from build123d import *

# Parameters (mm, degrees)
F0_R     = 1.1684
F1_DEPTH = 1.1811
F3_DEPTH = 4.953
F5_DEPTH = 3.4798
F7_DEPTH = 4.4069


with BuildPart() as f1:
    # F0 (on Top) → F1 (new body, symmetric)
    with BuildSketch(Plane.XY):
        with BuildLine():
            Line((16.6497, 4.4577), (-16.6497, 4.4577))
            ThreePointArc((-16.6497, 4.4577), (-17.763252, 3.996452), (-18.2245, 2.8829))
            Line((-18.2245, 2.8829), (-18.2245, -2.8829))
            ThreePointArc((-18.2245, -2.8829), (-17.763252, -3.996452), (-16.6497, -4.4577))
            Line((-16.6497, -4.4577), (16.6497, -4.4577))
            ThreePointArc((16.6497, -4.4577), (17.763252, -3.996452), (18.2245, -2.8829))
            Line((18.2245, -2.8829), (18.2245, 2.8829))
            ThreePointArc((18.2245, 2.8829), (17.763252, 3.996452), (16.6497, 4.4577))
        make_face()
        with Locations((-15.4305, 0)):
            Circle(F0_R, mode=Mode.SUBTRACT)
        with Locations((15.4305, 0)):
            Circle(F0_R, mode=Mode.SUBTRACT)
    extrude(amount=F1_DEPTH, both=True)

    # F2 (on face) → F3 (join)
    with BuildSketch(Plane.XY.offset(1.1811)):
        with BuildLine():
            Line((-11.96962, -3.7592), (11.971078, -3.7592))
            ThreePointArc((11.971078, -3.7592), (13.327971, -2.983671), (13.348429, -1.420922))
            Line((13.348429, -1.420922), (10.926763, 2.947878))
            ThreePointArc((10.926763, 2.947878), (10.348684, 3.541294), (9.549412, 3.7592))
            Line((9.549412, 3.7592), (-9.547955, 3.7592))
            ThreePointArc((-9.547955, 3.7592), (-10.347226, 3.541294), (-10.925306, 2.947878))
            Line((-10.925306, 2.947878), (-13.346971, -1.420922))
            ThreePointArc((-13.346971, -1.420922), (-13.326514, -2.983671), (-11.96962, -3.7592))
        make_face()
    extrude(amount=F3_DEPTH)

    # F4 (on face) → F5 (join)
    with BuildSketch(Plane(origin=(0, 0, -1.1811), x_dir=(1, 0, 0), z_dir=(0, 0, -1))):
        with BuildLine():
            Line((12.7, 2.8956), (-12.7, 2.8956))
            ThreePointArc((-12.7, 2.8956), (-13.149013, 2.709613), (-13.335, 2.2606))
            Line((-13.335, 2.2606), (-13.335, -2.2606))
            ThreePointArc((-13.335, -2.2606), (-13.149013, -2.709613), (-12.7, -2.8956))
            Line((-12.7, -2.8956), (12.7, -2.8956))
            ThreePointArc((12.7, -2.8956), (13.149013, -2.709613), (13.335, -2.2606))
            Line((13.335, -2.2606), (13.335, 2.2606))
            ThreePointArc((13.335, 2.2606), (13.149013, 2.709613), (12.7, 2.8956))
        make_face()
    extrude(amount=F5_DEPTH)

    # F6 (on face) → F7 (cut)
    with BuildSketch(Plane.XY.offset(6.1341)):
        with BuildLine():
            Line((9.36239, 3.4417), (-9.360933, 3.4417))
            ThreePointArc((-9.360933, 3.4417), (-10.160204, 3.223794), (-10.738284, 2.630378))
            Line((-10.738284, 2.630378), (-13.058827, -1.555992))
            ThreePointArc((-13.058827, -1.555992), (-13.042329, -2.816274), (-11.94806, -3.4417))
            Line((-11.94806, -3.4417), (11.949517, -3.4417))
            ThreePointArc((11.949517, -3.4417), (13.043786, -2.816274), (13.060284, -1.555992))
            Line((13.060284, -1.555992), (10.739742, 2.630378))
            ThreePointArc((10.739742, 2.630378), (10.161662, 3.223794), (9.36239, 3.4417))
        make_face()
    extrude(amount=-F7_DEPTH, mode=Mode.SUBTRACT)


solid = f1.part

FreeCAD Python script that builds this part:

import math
import FreeCAD as App
import Part
import Sketcher
Q = App.Units.Quantity

doc = App.newDocument("Part")
body = doc.addObject("PartDesign::Body", "Body")

# Sketch on XY plane
sketch1 = body.newObject("Sketcher::SketchObject", "Sketch")
sketch1.AttachmentSupport = (doc.getObject("XY_Plane"), [""])
sketch1.MapMode = "FlatFace"
sketch1.addGeometry([
    Part.LineSegment(App.Vector(16.6, 4.5, 0), App.Vector(-16.6, 4.5, 0)),  # 0
    Part.ArcOfCircle(Part.Circle(App.Vector(-16.6, 2.9, 0), App.Vector(0, 0, 1), 1.6), math.radians(90), math.radians(180)),  # 1
    Part.LineSegment(App.Vector(-18.2, 2.9, 0), App.Vector(-18.2, -2.9, 0)),  # 2
    Part.ArcOfCircle(Part.Circle(App.Vector(-16.6, -2.9, 0), App.Vector(0, 0, 1), 1.6), math.radians(180), math.radians(270)),  # 3
    Part.LineSegment(App.Vector(-16.6, -4.5, 0), App.Vector(16.6, -4.5, 0)),  # 4
    Part.ArcOfCircle(Part.Circle(App.Vector(16.6, -2.9, 0), App.Vector(0, 0, 1), 1.6), math.radians(-90), math.radians(0)),  # 5
    Part.LineSegment(App.Vector(18.2, -2.9, 0), App.Vector(18.2, 2.9, 0)),  # 6
    Part.ArcOfCircle(Part.Circle(App.Vector(16.6, 2.9, 0), App.Vector(0, 0, 1), 1.6), math.radians(0), math.radians(90)),  # 7
    Part.Circle(App.Vector(-15.4, 0, 0), App.Vector(0, 0, 1), 1.2),  # 8
    Part.Circle(App.Vector(15.4, 0, 0), App.Vector(0, 0, 1), 1.2),  # 9
], False)
sketch1.addConstraint([
    Sketcher.Constraint("Tangent", 0, 2, 1, 1),
    Sketcher.Constraint("Tangent", 1, 2, 2, 1),
    Sketcher.Constraint("Tangent", 2, 2, 3, 1),
    Sketcher.Constraint("Tangent", 3, 2, 4, 1),
    Sketcher.Constraint("Tangent", 4, 2, 5, 1),
    Sketcher.Constraint("Tangent", 5, 2, 6, 1),
    Sketcher.Constraint("Tangent", 6, 2, 7, 1),
    Sketcher.Constraint("Tangent", 7, 2, 0, 1),
    Sketcher.Constraint("Horizontal", 0),
    Sketcher.Constraint("Vertical", 2),
    Sketcher.Constraint("Horizontal", 4),
    Sketcher.Constraint("Vertical", 6),
    Sketcher.Constraint("Equal", 1, 3),
    Sketcher.Constraint("Equal", 3, 5),
    Sketcher.Constraint("Equal", 5, 7),
    Sketcher.Constraint("Equal", 8, 9),
    Sketcher.Constraint("Symmetric", 1, 3, 5, 3, -1, 1),
    Sketcher.Constraint("Symmetric", 8, 3, 9, 3, -1, 1),
    Sketcher.Constraint("PointOnObject", 8, 3, -1),
    Sketcher.Constraint("Diameter", 8, Q("0.092 in")),
    Sketcher.Constraint("Radius", 1, Q("0.062 in")),
    Sketcher.Constraint("DistanceX", 0, 2, 0, 1, Q("1.311 in")),
    Sketcher.Constraint("DistanceY", 2, 2, 2, 1, Q("0.227 in")),
    Sketcher.Constraint("DistanceX", 1, 2, 8, 3, Q("0.11 in")),
])
pad1 = body.newObject("PartDesign::Pad", "Pad")
pad1.Profile = sketch1
pad1.Length = Q("0.093 in")
pad1.Midplane = True

# Sketch on XY plane
sketch2 = body.newObject("Sketcher::SketchObject", "Sketch001")
sketch2.AttachmentSupport = (doc.getObject("XY_Plane"), [""])
sketch2.MapMode = "FlatFace"
sketch2.AttachmentOffset = App.Placement(App.Vector(0, 0, 0.0465 * 25.4), App.Rotation())
sketch2.addGeometry([
    Part.LineSegment(App.Vector(-12, -3.8, 0), App.Vector(12, -3.8, 0)),  # 0
    Part.ArcOfCircle(Part.Circle(App.Vector(12, -2.2, 0), App.Vector(0, 0, 1), 1.6), math.radians(-90), math.radians(29)),  # 1
    Part.LineSegment(App.Vector(13.3, -1.4, 0), App.Vector(10.9, 2.9, 0)),  # 2
    Part.ArcOfCircle(Part.Circle(App.Vector(9.5, 2.2, 0), App.Vector(0, 0, 1), 1.6), math.radians(29), math.radians(90)),  # 3
    Part.LineSegment(App.Vector(9.5, 3.8, 0), App.Vector(-9.5, 3.8, 0)),  # 4
    Part.ArcOfCircle(Part.Circle(App.Vector(-9.5, 2.2, 0), App.Vector(0, 0, 1), 1.6), math.radians(90), math.radians(151)),  # 5
    Part.LineSegment(App.Vector(-10.9, 2.9, 0), App.Vector(-13.3, -1.4, 0)),  # 6
    Part.ArcOfCircle(Part.Circle(App.Vector(-12, -2.2, 0), App.Vector(0, 0, 1), 1.6), math.radians(151), math.radians(270)),  # 7
], False)
sketch2.addConstraint([
    Sketcher.Constraint("Tangent", 0, 2, 1, 1),
    Sketcher.Constraint("Tangent", 1, 2, 2, 1),
    Sketcher.Constraint("Tangent", 2, 2, 3, 1),
    Sketcher.Constraint("Tangent", 3, 2, 4, 1),
    Sketcher.Constraint("Tangent", 4, 2, 5, 1),
    Sketcher.Constraint("Tangent", 5, 2, 6, 1),
    Sketcher.Constraint("Tangent", 6, 2, 7, 1),
    Sketcher.Constraint("Tangent", 7, 2, 0, 1),
    Sketcher.Constraint("Horizontal", 0),
    Sketcher.Constraint("Horizontal", 4),
    Sketcher.Constraint("Equal", 5, 7),
    Sketcher.Constraint("Horizontal", 1, 3, 7, 3),
    Sketcher.Constraint("Horizontal", 2, 2, 5, 2),
    Sketcher.Constraint("Horizontal", 1, 2, 6, 2),
    Sketcher.Constraint("Angle", 2, Q("119.000006 deg")),
    Sketcher.Constraint("Radius", 1, Q("0.062 in")),
    Sketcher.Constraint("DistanceY", 1, 3, -1, 1, Q("0.086 in")),
    Sketcher.Constraint("DistanceY", -1, 1, 3, 3, Q("0.0860002 in")),
    Sketcher.Constraint("DistanceX", 0, 1, 0, 2, Q("23.940698 mm")),
    Sketcher.Constraint("DistanceX", 7, 3, -1, 1, Q("11.96962 mm")),
])
pad2 = body.newObject("PartDesign::Pad", "Pad001")
pad2.Profile = sketch2
pad2.Length = Q("0.195 in")

# Sketch on XY plane
sketch3 = body.newObject("Sketcher::SketchObject", "Sketch002")
sketch3.AttachmentSupport = (doc.getObject("XY_Plane"), [""])
sketch3.MapMode = "FlatFace"
sketch3.AttachmentOffset = App.Placement(App.Vector(0, 0, -0.0465 * 25.4), App.Rotation())
sketch3.addGeometry([
    Part.LineSegment(App.Vector(12.7, -2.9, 0), App.Vector(-12.7, -2.9, 0)),  # 0
    Part.ArcOfCircle(Part.Circle(App.Vector(-12.7, -2.3, 0), App.Vector(0, 0, 1), 0.6), math.radians(180), math.radians(270)),  # 1
    Part.LineSegment(App.Vector(-13.3, -2.3, 0), App.Vector(-13.3, 2.3, 0)),  # 2
    Part.ArcOfCircle(Part.Circle(App.Vector(-12.7, 2.3, 0), App.Vector(0, 0, 1), 0.6), math.radians(90), math.radians(180)),  # 3
    Part.LineSegment(App.Vector(-12.7, 2.9, 0), App.Vector(12.7, 2.9, 0)),  # 4
    Part.ArcOfCircle(Part.Circle(App.Vector(12.7, 2.3, 0), App.Vector(0, 0, 1), 0.6), math.radians(0), math.radians(90)),  # 5
    Part.LineSegment(App.Vector(13.3, 2.3, 0), App.Vector(13.3, -2.3, 0)),  # 6
    Part.ArcOfCircle(Part.Circle(App.Vector(12.7, -2.3, 0), App.Vector(0, 0, 1), 0.6), math.radians(-90), math.radians(0)),  # 7
], False)
sketch3.addConstraint([
    Sketcher.Constraint("Tangent", 0, 2, 1, 2),
    Sketcher.Constraint("Tangent", 1, 1, 2, 1),
    Sketcher.Constraint("Tangent", 2, 2, 3, 2),
    Sketcher.Constraint("Tangent", 3, 1, 4, 1),
    Sketcher.Constraint("Tangent", 4, 2, 5, 2),
    Sketcher.Constraint("Tangent", 5, 1, 6, 1),
    Sketcher.Constraint("Tangent", 6, 2, 7, 2),
    Sketcher.Constraint("Tangent", 7, 1, 0, 1),
    Sketcher.Constraint("Horizontal", 0),
    Sketcher.Constraint("Vertical", 2),
    Sketcher.Constraint("Horizontal", 4),
    Sketcher.Constraint("Vertical", 6),
    Sketcher.Constraint("Equal", 1, 3),
    Sketcher.Constraint("Equal", 3, 5),
    Sketcher.Constraint("Equal", 5, 7),
    Sketcher.Constraint("Symmetric", 1, 3, 5, 3, -1, 1),
    Sketcher.Constraint("DistanceX", 0, 2, 0, 1, Q("1 in")),
    Sketcher.Constraint("Radius", 1, Q("0.025 in")),
    Sketcher.Constraint("DistanceY", 2, 1, 2, 2, Q("0.178 in")),
])
pad3 = body.newObject("PartDesign::Pad", "Pad002")
pad3.Profile = sketch3
pad3.Length = Q("0.137 in")
pad3.Reversed = True

# Sketch on XY plane
sketch4 = body.newObject("Sketcher::SketchObject", "Sketch003")
sketch4.AttachmentSupport = (doc.getObject("XY_Plane"), [""])
sketch4.MapMode = "FlatFace"
sketch4.AttachmentOffset = App.Placement(App.Vector(0, 0, 0.2415 * 25.4), App.Rotation())
sketch4.addGeometry([
    Part.LineSegment(App.Vector(9.4, 3.4, 0), App.Vector(-9.4, 3.4, 0)),  # 0
    Part.ArcOfCircle(Part.Circle(App.Vector(-9.4, 1.9, 0), App.Vector(0, 0, 1), 1.6), math.radians(90), math.radians(151)),  # 1
    Part.LineSegment(App.Vector(-10.7, 2.6, 0), App.Vector(-13.1, -1.6, 0)),  # 2
    Part.ArcOfCircle(Part.Circle(App.Vector(-11.9, -2.2, 0), App.Vector(0, 0, 1), 1.3), math.radians(151), math.radians(270)),  # 3
    Part.LineSegment(App.Vector(-11.9, -3.4, 0), App.Vector(11.9, -3.4, 0)),  # 4
    Part.ArcOfCircle(Part.Circle(App.Vector(11.9, -2.2, 0), App.Vector(0, 0, 1), 1.3), math.radians(-90), math.radians(29)),  # 5
    Part.LineSegment(App.Vector(13.1, -1.6, 0), App.Vector(10.7, 2.6, 0)),  # 6
    Part.ArcOfCircle(Part.Circle(App.Vector(9.4, 1.9, 0), App.Vector(0, 0, 1), 1.6), math.radians(29), math.radians(90)),  # 7
], False)
sketch4.addConstraint([
    Sketcher.Constraint("Tangent", 0, 2, 1, 1),
    Sketcher.Constraint("Tangent", 1, 2, 2, 1),
    Sketcher.Constraint("Tangent", 2, 2, 3, 1),
    Sketcher.Constraint("Tangent", 3, 2, 4, 1),
    Sketcher.Constraint("Tangent", 4, 2, 5, 1),
    Sketcher.Constraint("Tangent", 5, 2, 6, 1),
    Sketcher.Constraint("Tangent", 6, 2, 7, 1),
    Sketcher.Constraint("Tangent", 7, 2, 0, 1),
    Sketcher.Constraint("Horizontal", 0),
    Sketcher.Constraint("Horizontal", 4),
    Sketcher.Constraint("Equal", 3, 5),
    Sketcher.Constraint("Equal", 1, 7),
    Sketcher.Constraint("Horizontal", 2, 2, 5, 2),
    Sketcher.Constraint("Radius", 3, Q("0.05 in")),
    Sketcher.Constraint("Angle", 2, Q("-119.000002 deg")),
    Sketcher.Constraint("Radius", 1, Q("0.0619999 in")),
    Sketcher.Constraint("DistanceY", 3, 3, 1, 3, Q("0.1590001 in")),
    Sketcher.Constraint("DistanceY", -1, 1, 1, 3, Q("0.0735001 in")),
    Sketcher.Constraint("DistanceX", 1, 2, 5, 3, Q("22.687801 mm")),
    Sketcher.Constraint("DistanceX", 3, 3, -1, 1, Q("11.94806 mm")),
])
pocket1 = body.newObject("PartDesign::Pocket", "Pocket")
pocket1.Profile = sketch4
pocket1.Length = Q("0.1735 in")

doc.recompute()
